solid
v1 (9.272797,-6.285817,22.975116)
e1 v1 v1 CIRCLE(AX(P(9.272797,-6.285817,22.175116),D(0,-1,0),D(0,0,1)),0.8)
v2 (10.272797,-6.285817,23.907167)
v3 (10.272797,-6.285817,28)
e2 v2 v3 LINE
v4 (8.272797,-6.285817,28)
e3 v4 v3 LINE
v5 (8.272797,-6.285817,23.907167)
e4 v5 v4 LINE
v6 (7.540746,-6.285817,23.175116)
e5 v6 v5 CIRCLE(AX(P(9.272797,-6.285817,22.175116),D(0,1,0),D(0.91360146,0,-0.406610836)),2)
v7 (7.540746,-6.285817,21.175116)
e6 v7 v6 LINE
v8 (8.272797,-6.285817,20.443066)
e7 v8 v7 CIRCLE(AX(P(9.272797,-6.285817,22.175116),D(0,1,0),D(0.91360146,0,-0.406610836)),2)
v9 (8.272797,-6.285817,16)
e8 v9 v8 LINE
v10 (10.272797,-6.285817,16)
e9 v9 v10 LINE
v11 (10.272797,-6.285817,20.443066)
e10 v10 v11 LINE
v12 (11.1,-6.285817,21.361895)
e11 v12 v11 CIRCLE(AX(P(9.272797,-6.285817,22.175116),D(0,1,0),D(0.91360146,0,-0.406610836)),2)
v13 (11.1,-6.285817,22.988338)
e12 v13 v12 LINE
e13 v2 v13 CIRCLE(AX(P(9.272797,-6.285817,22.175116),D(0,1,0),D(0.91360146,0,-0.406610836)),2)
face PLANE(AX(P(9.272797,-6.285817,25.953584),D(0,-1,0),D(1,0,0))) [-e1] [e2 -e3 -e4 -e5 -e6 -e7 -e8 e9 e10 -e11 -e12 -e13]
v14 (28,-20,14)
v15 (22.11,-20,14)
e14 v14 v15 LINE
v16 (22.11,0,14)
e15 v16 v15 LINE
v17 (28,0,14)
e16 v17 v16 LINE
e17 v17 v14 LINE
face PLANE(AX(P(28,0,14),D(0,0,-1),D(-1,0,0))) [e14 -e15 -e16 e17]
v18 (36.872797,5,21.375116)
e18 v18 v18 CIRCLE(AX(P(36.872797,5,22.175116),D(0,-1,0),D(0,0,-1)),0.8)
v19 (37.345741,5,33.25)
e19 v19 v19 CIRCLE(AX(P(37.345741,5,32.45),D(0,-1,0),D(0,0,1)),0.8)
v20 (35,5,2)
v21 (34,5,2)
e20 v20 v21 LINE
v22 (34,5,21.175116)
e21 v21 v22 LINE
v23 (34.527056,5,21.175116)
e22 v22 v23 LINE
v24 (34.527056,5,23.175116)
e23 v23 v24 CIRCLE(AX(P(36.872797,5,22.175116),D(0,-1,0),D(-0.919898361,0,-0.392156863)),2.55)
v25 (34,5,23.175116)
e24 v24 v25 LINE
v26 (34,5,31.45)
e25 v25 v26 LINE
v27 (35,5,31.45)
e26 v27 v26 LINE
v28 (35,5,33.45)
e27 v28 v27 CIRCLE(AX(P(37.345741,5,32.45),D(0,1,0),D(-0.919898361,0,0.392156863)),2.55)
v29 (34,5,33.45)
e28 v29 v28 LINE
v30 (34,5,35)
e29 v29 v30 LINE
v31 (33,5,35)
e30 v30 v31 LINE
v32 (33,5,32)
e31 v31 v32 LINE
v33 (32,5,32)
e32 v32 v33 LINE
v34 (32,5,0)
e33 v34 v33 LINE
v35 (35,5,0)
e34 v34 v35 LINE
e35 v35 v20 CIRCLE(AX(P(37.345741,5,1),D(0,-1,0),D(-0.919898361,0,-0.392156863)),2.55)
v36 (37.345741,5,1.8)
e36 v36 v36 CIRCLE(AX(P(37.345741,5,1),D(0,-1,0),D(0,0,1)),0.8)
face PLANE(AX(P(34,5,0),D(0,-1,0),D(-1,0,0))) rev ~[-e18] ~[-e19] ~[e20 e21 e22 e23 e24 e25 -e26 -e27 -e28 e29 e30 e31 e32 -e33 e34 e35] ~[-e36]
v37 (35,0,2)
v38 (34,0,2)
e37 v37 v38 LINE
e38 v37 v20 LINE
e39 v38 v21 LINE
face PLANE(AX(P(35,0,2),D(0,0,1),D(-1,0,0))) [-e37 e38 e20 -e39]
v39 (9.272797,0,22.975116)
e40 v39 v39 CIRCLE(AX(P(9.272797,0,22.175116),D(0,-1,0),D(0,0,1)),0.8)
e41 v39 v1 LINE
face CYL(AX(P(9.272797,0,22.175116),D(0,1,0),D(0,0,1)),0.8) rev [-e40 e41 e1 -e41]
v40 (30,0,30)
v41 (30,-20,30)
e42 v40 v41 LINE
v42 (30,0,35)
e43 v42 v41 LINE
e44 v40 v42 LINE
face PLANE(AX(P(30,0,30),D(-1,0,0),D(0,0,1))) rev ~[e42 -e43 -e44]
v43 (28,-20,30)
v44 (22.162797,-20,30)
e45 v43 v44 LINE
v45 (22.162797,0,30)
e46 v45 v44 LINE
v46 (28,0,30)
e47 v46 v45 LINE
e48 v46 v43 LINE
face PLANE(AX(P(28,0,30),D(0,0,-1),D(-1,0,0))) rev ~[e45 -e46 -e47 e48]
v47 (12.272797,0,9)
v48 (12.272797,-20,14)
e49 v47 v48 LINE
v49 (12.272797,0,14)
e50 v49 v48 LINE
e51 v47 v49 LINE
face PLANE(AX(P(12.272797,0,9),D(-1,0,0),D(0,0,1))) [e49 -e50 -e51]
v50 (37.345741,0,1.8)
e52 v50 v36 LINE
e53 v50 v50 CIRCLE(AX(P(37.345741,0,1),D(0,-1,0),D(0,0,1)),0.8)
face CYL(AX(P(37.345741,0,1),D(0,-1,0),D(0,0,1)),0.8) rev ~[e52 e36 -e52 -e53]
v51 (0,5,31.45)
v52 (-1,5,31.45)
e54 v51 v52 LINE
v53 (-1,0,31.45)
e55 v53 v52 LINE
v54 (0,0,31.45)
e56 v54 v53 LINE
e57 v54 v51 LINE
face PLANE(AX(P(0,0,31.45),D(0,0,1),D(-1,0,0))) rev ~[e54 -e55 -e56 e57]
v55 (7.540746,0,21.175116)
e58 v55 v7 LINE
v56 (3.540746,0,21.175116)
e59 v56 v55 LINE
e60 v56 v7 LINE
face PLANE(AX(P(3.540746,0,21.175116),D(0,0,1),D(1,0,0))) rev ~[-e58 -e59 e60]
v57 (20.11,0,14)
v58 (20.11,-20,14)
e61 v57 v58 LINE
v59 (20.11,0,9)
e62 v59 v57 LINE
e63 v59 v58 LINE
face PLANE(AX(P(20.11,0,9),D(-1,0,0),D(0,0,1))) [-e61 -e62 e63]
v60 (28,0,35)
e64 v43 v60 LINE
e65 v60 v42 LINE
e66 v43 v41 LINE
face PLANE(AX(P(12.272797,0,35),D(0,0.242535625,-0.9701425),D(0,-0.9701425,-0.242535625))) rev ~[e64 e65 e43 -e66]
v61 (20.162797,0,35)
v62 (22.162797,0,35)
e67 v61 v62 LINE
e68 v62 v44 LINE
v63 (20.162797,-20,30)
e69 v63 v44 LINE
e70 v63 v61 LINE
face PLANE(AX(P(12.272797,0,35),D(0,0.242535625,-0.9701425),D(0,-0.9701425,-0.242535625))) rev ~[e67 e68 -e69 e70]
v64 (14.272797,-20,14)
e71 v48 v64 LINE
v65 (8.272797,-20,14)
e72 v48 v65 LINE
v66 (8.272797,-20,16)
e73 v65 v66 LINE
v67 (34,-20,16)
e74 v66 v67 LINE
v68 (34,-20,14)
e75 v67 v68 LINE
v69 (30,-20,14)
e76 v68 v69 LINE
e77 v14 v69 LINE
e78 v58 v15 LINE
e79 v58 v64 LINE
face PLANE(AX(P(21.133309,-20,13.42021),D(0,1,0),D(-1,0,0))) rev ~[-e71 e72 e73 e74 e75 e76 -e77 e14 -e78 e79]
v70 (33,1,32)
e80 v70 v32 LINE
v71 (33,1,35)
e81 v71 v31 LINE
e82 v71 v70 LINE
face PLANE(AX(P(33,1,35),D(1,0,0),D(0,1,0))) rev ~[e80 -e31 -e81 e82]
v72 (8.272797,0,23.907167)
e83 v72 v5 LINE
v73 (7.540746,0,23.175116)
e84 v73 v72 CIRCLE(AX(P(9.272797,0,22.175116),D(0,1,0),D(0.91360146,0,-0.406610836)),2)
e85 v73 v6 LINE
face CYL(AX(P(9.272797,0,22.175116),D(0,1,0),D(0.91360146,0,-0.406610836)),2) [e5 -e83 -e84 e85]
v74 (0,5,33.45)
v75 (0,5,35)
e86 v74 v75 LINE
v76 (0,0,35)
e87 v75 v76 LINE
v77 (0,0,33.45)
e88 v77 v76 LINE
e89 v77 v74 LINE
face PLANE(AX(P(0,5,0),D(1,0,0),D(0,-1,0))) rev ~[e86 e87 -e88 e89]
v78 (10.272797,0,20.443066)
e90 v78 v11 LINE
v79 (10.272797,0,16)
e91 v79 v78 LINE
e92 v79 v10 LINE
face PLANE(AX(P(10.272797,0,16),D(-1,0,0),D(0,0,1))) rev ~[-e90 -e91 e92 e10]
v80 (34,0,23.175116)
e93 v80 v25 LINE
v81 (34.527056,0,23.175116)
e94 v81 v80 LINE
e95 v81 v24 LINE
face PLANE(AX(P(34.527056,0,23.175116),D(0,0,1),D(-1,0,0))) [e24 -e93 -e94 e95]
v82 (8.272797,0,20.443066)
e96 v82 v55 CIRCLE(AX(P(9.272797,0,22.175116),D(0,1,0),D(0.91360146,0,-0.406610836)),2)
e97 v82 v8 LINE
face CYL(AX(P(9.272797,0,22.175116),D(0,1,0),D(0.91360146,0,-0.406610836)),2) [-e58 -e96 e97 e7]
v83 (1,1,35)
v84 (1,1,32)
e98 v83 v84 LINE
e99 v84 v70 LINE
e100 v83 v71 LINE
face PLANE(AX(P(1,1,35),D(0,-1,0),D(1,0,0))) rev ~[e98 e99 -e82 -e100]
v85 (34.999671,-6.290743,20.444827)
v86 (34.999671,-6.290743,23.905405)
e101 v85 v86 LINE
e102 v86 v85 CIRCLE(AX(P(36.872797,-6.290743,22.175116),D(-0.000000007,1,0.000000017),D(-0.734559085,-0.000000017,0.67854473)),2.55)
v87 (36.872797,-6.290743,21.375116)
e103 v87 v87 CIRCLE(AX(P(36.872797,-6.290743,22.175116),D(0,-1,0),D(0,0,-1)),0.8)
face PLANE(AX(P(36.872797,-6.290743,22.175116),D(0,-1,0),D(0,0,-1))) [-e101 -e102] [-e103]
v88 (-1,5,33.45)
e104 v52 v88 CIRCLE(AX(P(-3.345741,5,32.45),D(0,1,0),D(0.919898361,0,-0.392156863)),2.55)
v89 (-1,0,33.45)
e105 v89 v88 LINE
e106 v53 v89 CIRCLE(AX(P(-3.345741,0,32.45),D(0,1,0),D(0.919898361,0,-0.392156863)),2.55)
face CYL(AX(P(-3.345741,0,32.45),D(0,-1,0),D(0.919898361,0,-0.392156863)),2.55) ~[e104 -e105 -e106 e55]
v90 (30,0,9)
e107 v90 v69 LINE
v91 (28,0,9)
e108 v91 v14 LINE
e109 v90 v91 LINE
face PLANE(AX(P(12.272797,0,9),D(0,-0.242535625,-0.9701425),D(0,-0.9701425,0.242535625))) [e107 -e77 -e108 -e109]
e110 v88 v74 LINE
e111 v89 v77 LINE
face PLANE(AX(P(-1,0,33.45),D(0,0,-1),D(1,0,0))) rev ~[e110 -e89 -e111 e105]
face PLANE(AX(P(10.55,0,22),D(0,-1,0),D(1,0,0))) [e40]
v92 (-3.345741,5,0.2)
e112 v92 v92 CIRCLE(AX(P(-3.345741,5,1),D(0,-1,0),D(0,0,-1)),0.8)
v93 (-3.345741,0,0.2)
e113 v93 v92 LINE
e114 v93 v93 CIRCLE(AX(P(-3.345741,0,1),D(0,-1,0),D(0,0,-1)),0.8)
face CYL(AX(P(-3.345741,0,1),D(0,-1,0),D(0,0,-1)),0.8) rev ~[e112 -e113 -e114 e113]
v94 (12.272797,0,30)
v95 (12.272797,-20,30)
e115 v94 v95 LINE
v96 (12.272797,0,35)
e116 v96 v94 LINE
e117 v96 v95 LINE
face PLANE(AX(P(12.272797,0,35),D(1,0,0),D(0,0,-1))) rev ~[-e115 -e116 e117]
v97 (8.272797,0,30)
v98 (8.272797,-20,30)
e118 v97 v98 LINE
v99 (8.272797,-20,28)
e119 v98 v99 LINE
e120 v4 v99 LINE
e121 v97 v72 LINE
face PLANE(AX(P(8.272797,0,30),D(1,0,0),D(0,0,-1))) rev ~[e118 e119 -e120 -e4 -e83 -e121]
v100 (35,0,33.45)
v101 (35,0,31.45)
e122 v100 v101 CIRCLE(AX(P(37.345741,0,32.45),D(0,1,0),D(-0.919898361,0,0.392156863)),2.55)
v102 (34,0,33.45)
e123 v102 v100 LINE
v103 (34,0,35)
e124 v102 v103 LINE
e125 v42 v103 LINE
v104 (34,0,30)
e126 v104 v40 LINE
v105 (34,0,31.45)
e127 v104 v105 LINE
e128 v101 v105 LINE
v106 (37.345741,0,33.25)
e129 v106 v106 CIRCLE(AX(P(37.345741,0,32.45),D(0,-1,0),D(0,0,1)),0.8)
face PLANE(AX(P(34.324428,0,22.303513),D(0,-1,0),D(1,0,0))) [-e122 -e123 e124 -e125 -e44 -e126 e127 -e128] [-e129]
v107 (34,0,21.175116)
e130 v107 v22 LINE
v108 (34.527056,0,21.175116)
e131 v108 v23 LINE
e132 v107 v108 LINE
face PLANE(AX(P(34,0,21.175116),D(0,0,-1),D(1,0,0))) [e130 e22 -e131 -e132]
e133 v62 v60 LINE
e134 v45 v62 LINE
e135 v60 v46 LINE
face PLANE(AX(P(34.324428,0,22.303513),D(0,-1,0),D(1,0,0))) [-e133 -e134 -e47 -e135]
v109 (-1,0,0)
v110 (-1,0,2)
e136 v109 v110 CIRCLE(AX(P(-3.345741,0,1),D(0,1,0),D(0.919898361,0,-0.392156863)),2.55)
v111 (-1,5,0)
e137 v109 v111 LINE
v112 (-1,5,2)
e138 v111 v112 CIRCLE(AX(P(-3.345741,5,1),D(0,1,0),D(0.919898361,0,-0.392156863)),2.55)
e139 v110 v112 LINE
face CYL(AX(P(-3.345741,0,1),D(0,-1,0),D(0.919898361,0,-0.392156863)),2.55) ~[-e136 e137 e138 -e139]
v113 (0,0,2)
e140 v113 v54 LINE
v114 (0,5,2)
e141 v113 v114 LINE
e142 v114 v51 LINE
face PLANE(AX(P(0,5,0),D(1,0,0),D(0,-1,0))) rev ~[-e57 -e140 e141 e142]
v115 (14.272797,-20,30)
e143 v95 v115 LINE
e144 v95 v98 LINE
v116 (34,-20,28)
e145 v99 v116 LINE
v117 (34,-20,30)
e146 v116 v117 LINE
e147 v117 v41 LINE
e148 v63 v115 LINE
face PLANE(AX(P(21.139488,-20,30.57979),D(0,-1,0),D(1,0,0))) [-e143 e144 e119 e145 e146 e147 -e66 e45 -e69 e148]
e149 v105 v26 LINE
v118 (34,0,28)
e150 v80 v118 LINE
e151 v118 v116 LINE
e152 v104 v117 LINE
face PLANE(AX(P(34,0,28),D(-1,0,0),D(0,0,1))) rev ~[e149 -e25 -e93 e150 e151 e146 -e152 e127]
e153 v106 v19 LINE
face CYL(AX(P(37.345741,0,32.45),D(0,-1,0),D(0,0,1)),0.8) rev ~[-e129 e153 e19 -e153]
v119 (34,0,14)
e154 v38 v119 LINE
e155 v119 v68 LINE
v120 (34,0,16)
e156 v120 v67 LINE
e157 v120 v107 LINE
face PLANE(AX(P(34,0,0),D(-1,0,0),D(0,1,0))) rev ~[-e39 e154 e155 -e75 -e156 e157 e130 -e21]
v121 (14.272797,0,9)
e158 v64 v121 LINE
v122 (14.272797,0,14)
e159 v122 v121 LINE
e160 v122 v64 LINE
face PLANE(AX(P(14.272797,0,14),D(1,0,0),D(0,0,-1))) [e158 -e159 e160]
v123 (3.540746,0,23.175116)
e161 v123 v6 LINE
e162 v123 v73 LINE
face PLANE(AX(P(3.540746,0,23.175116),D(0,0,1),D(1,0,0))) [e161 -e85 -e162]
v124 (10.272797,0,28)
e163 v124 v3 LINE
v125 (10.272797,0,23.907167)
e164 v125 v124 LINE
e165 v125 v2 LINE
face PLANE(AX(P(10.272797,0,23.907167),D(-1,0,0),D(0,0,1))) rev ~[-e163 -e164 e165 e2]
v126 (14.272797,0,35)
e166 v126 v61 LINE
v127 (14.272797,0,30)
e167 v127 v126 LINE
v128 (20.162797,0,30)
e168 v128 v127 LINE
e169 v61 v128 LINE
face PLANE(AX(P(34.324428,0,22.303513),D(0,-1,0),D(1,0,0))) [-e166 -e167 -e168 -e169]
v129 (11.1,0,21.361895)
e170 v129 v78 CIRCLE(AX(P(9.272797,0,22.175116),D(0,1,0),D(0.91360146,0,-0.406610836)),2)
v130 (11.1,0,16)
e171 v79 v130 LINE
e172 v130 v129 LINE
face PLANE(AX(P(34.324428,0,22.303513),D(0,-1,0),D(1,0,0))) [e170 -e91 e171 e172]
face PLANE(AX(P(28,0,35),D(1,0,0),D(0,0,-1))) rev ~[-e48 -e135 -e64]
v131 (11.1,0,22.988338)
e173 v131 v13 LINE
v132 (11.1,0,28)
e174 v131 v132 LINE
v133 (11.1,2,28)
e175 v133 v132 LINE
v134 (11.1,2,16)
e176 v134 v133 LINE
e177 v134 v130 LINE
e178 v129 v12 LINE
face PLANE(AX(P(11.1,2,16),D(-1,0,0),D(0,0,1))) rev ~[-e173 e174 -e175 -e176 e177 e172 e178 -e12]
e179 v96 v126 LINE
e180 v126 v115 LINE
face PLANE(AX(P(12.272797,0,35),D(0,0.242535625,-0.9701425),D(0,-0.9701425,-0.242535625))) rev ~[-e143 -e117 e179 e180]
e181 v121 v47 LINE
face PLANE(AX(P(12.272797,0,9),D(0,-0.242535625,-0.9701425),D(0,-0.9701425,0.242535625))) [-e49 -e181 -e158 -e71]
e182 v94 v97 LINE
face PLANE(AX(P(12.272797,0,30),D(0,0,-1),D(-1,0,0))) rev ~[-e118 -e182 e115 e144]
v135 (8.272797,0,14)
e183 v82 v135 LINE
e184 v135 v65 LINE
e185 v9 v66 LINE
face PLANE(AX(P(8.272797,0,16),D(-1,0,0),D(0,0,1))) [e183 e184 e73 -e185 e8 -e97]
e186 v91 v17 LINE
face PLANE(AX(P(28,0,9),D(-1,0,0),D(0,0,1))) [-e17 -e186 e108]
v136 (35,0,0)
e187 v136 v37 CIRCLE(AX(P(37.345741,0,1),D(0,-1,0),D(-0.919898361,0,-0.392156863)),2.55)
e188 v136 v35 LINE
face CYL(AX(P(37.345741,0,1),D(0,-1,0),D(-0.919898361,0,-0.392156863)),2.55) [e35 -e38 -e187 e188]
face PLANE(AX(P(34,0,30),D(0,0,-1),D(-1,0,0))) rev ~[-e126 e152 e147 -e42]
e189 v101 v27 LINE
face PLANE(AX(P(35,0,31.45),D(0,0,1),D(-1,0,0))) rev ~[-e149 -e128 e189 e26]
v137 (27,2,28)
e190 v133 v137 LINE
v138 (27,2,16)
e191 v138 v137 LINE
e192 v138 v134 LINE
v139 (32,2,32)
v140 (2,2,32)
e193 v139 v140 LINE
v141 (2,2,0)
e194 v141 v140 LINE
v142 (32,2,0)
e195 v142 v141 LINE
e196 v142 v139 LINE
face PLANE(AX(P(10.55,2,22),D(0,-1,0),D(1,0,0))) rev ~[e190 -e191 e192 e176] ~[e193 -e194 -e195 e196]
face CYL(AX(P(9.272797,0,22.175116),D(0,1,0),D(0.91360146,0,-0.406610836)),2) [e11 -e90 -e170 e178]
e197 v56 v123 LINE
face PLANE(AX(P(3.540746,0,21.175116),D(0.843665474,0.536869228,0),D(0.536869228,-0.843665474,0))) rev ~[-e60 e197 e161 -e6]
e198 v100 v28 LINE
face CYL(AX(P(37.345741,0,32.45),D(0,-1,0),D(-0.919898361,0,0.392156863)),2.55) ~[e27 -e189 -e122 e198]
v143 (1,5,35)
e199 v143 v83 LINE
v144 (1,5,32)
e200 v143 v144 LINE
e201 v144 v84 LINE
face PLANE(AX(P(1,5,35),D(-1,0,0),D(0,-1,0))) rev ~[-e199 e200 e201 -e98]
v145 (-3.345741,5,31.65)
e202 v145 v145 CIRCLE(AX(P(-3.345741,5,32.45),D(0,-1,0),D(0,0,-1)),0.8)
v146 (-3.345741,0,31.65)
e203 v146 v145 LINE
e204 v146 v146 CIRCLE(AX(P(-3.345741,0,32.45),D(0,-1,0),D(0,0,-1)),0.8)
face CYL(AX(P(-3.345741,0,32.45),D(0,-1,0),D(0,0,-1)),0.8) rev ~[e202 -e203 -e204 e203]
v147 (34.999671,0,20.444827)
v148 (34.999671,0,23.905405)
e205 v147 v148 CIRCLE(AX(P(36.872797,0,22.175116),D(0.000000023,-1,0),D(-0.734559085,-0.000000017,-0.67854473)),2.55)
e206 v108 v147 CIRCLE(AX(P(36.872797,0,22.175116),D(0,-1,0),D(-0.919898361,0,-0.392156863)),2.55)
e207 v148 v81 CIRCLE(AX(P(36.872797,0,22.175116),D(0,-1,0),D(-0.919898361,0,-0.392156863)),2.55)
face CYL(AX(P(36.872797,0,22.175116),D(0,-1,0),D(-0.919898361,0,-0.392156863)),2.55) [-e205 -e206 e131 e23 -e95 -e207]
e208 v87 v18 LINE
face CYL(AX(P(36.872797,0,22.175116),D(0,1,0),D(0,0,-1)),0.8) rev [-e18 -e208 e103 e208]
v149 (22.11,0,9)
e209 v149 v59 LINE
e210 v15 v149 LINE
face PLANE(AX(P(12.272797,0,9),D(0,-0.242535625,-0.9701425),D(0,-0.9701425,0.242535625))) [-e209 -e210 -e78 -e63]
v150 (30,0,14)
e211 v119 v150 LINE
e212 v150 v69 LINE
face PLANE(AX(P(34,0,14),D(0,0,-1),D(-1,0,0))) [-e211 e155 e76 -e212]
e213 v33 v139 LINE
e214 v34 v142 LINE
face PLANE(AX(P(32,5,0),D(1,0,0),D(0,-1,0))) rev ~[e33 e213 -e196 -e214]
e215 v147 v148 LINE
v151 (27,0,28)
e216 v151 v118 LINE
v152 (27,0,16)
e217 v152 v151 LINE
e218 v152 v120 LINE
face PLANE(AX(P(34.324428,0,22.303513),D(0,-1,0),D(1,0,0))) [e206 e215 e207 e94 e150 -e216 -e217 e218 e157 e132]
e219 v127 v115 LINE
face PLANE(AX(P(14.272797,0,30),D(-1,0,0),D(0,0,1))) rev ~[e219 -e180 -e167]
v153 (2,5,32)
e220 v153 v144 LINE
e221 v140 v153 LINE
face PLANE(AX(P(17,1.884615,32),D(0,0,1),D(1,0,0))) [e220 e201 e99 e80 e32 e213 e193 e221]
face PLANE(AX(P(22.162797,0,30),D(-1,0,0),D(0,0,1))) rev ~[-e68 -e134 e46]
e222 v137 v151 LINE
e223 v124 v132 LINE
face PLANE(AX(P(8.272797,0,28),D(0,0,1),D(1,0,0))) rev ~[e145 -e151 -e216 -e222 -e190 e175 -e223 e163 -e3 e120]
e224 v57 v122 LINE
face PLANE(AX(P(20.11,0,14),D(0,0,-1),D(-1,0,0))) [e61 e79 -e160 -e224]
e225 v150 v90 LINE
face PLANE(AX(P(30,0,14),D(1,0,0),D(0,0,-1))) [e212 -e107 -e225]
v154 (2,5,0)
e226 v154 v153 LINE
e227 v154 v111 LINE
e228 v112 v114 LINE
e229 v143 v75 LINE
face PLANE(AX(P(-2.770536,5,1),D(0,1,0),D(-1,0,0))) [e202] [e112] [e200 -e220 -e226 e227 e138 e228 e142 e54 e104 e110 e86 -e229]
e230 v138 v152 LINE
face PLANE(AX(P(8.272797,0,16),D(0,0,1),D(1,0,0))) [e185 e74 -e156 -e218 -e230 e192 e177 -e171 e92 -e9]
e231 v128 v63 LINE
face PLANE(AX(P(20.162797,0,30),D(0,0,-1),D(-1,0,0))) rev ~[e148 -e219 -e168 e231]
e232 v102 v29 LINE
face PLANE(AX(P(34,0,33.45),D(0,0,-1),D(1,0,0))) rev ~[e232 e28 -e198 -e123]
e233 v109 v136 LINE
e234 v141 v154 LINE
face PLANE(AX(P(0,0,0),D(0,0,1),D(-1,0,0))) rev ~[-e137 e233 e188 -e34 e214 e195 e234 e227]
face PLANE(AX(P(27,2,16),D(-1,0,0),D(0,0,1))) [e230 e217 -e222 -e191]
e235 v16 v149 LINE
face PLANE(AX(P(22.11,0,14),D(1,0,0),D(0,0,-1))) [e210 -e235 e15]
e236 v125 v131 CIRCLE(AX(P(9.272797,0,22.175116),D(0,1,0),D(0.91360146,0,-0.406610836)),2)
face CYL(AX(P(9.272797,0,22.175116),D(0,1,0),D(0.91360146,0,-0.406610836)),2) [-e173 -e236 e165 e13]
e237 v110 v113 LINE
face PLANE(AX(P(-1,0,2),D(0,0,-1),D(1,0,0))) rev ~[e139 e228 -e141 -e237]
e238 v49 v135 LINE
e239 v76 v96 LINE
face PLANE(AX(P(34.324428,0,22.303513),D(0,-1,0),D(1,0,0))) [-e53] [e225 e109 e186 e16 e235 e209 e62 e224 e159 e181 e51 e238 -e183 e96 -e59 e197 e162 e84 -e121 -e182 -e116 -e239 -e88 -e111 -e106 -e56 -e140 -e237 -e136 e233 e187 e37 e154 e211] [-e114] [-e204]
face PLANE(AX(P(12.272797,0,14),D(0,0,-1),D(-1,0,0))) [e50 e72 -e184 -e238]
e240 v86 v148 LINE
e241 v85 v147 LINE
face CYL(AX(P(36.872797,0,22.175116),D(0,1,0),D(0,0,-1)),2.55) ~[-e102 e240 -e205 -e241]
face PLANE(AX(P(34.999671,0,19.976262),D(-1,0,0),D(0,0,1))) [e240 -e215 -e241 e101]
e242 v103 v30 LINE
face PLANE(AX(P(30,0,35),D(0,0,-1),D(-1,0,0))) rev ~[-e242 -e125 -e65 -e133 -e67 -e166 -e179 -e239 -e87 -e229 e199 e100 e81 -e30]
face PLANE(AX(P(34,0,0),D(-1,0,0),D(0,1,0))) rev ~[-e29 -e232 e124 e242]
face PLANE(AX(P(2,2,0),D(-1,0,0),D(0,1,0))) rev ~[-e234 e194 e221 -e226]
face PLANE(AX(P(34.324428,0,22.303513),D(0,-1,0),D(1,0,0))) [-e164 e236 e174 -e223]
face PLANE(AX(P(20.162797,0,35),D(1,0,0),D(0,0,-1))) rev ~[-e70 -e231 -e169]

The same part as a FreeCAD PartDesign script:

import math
import FreeCAD as App
import Part
import Sketcher

V = App.Vector
Q = App.Units.Quantity


def add_polygon(sketch, points):
    """Adds a closed chain of lines whose ends are joined by coincident constraints."""
    first, n = sketch.GeometryCount, len(points)
    for a, b in zip(points, points[1:] + points[:1]):
        sketch.addGeometry(Part.LineSegment(App.Vector(*a, 0), App.Vector(*b, 0)), False)
    for i in range(n):
        sketch.addConstraint(Sketcher.Constraint("Coincident", first + i, 2, first + (i + 1) % n, 1))

doc = App.newDocument("Part")
params = doc.addObject("Spreadsheet::Sheet", "Params")
for row, (alias, value) in enumerate([
    ("sketch1_width", "34 mm"),
    ("sketch1_width2", "2 mm"),
    ("sketch1_height", "5 mm"),
    ("sketch1_height2", "3 mm"),
    ("pad1_length", "35 mm"),
    ("sketch2_width", "1 mm"),
    ("sketch2_width2", "32 mm"),
    ("sketch2_height", "4 mm"),
    ("sketch2_height2", "3 mm"),
    ("pocket1_length", "3 mm"),
    ("sketch3_width", "14 mm"),
    ("sketch3_height", "12 mm"),
    ("pocket2_length", "2 mm"),
    ("sketch4_width", "3 mm"),
    ("sketch4_height", "12 mm"),
    ("pocket3_length", "2 mm"),
    ("sketch5_height", "12 mm"),
    ("sketch5_width", "1.1 mm"),
    ("pad2_length", "2 mm"),
    ("sketch6_radius", "2 mm"),
    ("sketch6_diameter", "1.6 mm"),
    ("pad3_length", "6.285817 mm"),
    ("sketch7_width", "2 mm"),
    ("sketch7_width2", "4 mm"),
    ("pad4_length", "6.285817 mm"),
    ("sketch8_width", "4 mm"),
    ("pocket4_length", "2 mm"),
    ("sketch9_diameter", "1.6 mm"),
    ("sketch9_width", "1 mm"),
    ("sketch9_height", "2 mm"),
    ("sketch9_radius", "2.55 mm"),
    ("pad5_length", "5 mm"),
    ("sketch10_diameter", "1.6 mm"),
    ("sketch10_width", "1 mm"),
    ("sketch10_height", "2 mm"),
    ("sketch10_radius", "2.55 mm"),
    ("pad6_length", "5 mm"),
    ("sketch11_diameter", "1.6 mm"),
    ("sketch11_height", "2 mm"),
    ("sketch11_radius", "2.55 mm"),
    ("pad7_length", "5 mm"),
    ("sketch12_diameter", "5.1 mm"),
    ("sketch12_diameter2", "1.6 mm"),
    ("pad8_length", "6.290743 mm"),
    ("pocket5_length", "6.290743 mm"),
    ("sketch14_width", "4 mm"),
    ("sketch14_width2", "2 mm"),
    ("sketch14_height", "5 mm"),
    ("sketch14_width3", "5.89 mm"),
    ("pad9_length", "20 mm"),
    ("sketch15_width", "20 mm"),
    ("sketch15_height", "5 mm"),
    ("pocket6_length", "17.727203 mm"),
], start=1):
    params.set(f"A{row}", alias)
    params.set(f"B{row}", "=" + value)
    params.setAlias(f"B{row}", alias)

body = doc.addObject("PartDesign::Body", "Body")

sketch1 = body.newObject("Sketcher::SketchObject", "Sketch")
sketch1.AttachmentSupport = (doc.getObject("XY_Plane"), [""])
sketch1.MapMode = "FlatFace"
add_polygon(sketch1, [(0, 0), (34, 0), (34, 5), (32, 5), (32, 2), (2, 2), (2, 5), (0, 5)])
sketch1.addConstraint(Sketcher.Constraint("Horizontal", 0))
sketch1.addConstraint(Sketcher.Constraint("Vertical", 1))
sketch1.addConstraint(Sketcher.Constraint("Horizontal", 2))
sketch1.addConstraint(Sketcher.Constraint("Vertical", 3))
sketch1.addConstraint(Sketcher.Constraint("Horizontal", 4))
sketch1.addConstraint(Sketcher.Constraint("Vertical", 5))
sketch1.addConstraint(Sketcher.Constraint("Horizontal", 6))
sketch1.addConstraint(Sketcher.Constraint("Vertical", 7))
sketch1.addConstraint(Sketcher.Constraint("Coincident", 7, 2, -1, 1))
sketch1.addConstraint(Sketcher.Constraint("Horizontal", 2, 2, 5, 2))
sketch1.addConstraint(Sketcher.Constraint("Equal", 2, 6))
sketch1.addConstraint(Sketcher.Constraint("DistanceX", 0, 1, 0, 2, Q("34 mm")))
sketch1.addConstraint(Sketcher.Constraint("DistanceX", 2, 2, 2, 1, Q("2 mm")))
sketch1.addConstraint(Sketcher.Constraint("DistanceY", 1, 1, 1, 2, Q("5 mm")))
sketch1.addConstraint(Sketcher.Constraint("DistanceY", 3, 2, 3, 1, Q("3 mm")))
sketch1.setExpression("Constraints[19]", "Params.sketch1_width")
sketch1.setExpression("Constraints[20]", "Params.sketch1_width2")
sketch1.setExpression("Constraints[21]", "Params.sketch1_height")
sketch1.setExpression("Constraints[22]", "Params.sketch1_height2")
pad1 = body.newObject("PartDesign::Pad", "Pad")
pad1.Profile = sketch1
pad1.setExpression("Length", "Params.pad1_length")

sketch2 = body.newObject("Sketcher::SketchObject", "Sketch001")
sketch2.AttachmentSupport = (doc.getObject("XY_Plane"), [""])
sketch2.MapMode = "FlatFace"
sketch2.AttachmentOffset = App.Placement(V(0, 0, 35), App.Rotation())
add_polygon(sketch2, [(2, 5), (1, 5), (1, 1), (33, 1), (33, 5), (32, 5), (32, 2), (2, 2)])
sketch2.addConstraint(Sketcher.Constraint("Horizontal", 0))
sketch2.addConstraint(Sketcher.Constraint("Vertical", 1))
sketch2.addConstraint(Sketcher.Constraint("Horizontal", 2))
sketch2.addConstraint(Sketcher.Constraint("Vertical", 3))
sketch2.addConstraint(Sketcher.Constraint("Horizontal", 4))
sketch2.addConstraint(Sketcher.Constraint("Vertical", 5))
sketch2.addConstraint(Sketcher.Constraint("Horizontal", 6))
sketch2.addConstraint(Sketcher.Constraint("Vertical", 7))
sketch2.addConstraint(Sketcher.Constraint("Horizontal", 0, 2, 3, 2))
sketch2.addConstraint(Sketcher.Constraint("Equal", 0, 4))
sketch2.addConstraint(Sketcher.Constraint("DistanceX", 0, 2, 0, 1, Q("1 mm")))
sketch2.addConstraint(Sketcher.Constraint("DistanceX", 2, 1, 2, 2, Q("32 mm")))
sketch2.addConstraint(Sketcher.Constraint("DistanceY", 1, 2, 1, 1, Q("4 mm")))
sketch2.addConstraint(Sketcher.Constraint("DistanceY", 5, 2, 5, 1, Q("3 mm")))
sketch2.addConstraint(Sketcher.Constraint("DistanceX", -1, 1, 0, 2, Q("1 mm")))
sketch2.addConstraint(Sketcher.Constraint("DistanceY", -1, 1, 0, 2, Q("5 mm")))
sketch2.setExpression("Constraints[18]", "Params.sketch2_width")
sketch2.setExpression("Constraints[19]", "Params.sketch2_width2")
sketch2.setExpression("Constraints[20]", "Params.sketch2_height")
sketch2.setExpression("Constraints[21]", "Params.sketch2_height2")
pocket1 = body.newObject("PartDesign::Pocket", "Pocket")
pocket1.Profile = sketch2
pocket1.setExpression("Length", "Params.pocket1_length")

sketch3 = body.newObject("Sketcher::SketchObject", "Sketch002")
sketch3.AttachmentSupport = (doc.getObject("XZ_Plane"), [""])
sketch3.MapMode = "FlatFace"
add_polygon(sketch3, [(10, 16), (10, 28), (24, 28), (24, 16)])
sketch3.addConstraint(Sketcher.Constraint("Vertical", 0))
sketch3.addConstraint(Sketcher.Constraint("Horizontal", 1))
sketch3.addConstraint(Sketcher.Constraint("Vertical", 2))
sketch3.addConstraint(Sketcher.Constraint("Horizontal", 3))
sketch3.addConstraint(Sketcher.Constraint("DistanceX", 1, 1, 1, 2, Q("14 mm")))
sketch3.addConstraint(Sketcher.Constraint("DistanceY", 0, 1, 0, 2, Q("12 mm")))
sketch3.addConstraint(Sketcher.Constraint("DistanceX", -1, 1, 0, 2, Q("10 mm")))
sketch3.addConstraint(Sketcher.Constraint("DistanceY", -1, 1, 0, 2, Q("28 mm")))
sketch3.setExpression("Constraints[8]", "Params.sketch3_width")
sketch3.setExpression("Constraints[9]", "Params.sketch3_height")
pocket2 = body.newObject("PartDesign::Pocket", "Pocket001")
pocket2.Profile = sketch3
pocket2.setExpression("Length", "Params.pocket2_length")

sketch4 = body.newObject("Sketcher::SketchObject", "Sketch003")
sketch4.AttachmentSupport = (doc.getObject("XZ_Plane"), [""])
sketch4.MapMode = "FlatFace"
sketch4.AttachmentOffset = App.Placement(V(0, 0, -2), App.Rotation())
add_polygon(sketch4, [(24, 28), (24, 16), (27, 16), (27, 28)])
sketch4.addConstraint(Sketcher.Constraint("Vertical", 0))
sketch4.addConstraint(Sketcher.Constraint("Horizontal", 1))
sketch4.addConstraint(Sketcher.Constraint("Vertical", 2))
sketch4.addConstraint(Sketcher.Constraint("Horizontal", 3))
sketch4.addConstraint(Sketcher.Constraint("DistanceX", 1, 1, 1, 2, Q("3 mm")))
sketch4.addConstraint(Sketcher.Constraint("DistanceY", 0, 2, 0, 1, Q("12 mm")))
sketch4.addConstraint(Sketcher.Constraint("DistanceX", -1, 1, 0, 2, Q("24 mm")))
sketch4.addConstraint(Sketcher.Constraint("DistanceY", -1, 1, 0, 2, Q("16 mm")))
sketch4.setExpression("Constraints[8]", "Params.sketch4_width")
sketch4.setExpression("Constraints[9]", "Params.sketch4_height")
pocket3 = body.newObject("PartDesign::Pocket", "Pocket002")
pocket3.Profile = sketch4
pocket3.setExpression("Length", "Params.pocket3_length")
pocket3.Reversed = True

sketch5 = body.newObject("Sketcher::SketchObject", "Sketch004")
sketch5.AttachmentSupport = (doc.getObject("XZ_Plane"), [""])
sketch5.MapMode = "FlatFace"
sketch5.AttachmentOffset = App.Placement(V(0, 0, -2), App.Rotation())
add_polygon(sketch5, [(10, 28), (10, 16), (11.1, 16), (11.1, 28)])
sketch5.addConstraint(Sketcher.Constraint("Vertical", 0))
sketch5.addConstraint(Sketcher.Constraint("Horizontal", 1))
sketch5.addConstraint(Sketcher.Constraint("Vertical", 2))
sketch5.addConstraint(Sketcher.Constraint("Horizontal", 3))
sketch5.addConstraint(Sketcher.Constraint("DistanceY", 0, 2, 0, 1, Q("12 mm")))
sketch5.addConstraint(Sketcher.Constraint("DistanceX", 1, 1, 1, 2, Q("1.1 mm")))
sketch5.addConstraint(Sketcher.Constraint("DistanceX", -1, 1, 0, 2, Q("10 mm")))
sketch5.addConstraint(Sketcher.Constraint("DistanceY", -1, 1, 0, 2, Q("16 mm")))
sketch5.setExpression("Constraints[8]", "Params.sketch5_height")
sketch5.setExpression("Constraints[9]", "Params.sketch5_width")
pad2 = body.newObject("PartDesign::Pad", "Pad001")
pad2.Profile = sketch5
pad2.setExpression("Length", "Params.pad2_length")

sketch6 = body.newObject("Sketcher::SketchObject", "Sketch005")
sketch6.AttachmentSupport = (doc.getObject("XZ_Plane"), [""])
sketch6.MapMode = "FlatFace"
sketch6.addGeometry(Part.LineSegment(V(11.1, 21.4, 0), V(11.1, 23, 0)), False)
sketch6.addGeometry(Part.ArcOfCircle(Part.Circle(V(9.3, 22.2, 0), V(0, 0, 1), 2), math.radians(24), math.radians(336)), False)
sketch6.addGeometry(Part.Circle(V(9.3, 22.2, 0), V(0, 0, 1), 0.8), False)
sketch6.addConstraint(Sketcher.Constraint("Coincident", 0, 1, 1, 2))
sketch6.addConstraint(Sketcher.Constraint("Coincident", 1, 1, 0, 2))
sketch6.addConstraint(Sketcher.Constraint("Vertical", 0))
sketch6.addConstraint(Sketcher.Constraint("Coincident", 2, 3, 1, 3))
sketch6.addConstraint(Sketcher.Constraint("Radius", 1, Q("2 mm")))
sketch6.addConstraint(Sketcher.Constraint("Diameter", 2, Q("1.6 mm")))
sketch6.addConstraint(Sketcher.Constraint("DistanceX", -1, 1, 0, 1, Q("11.1 mm")))
sketch6.addConstraint(Sketcher.Constraint("DistanceY", 0, 1, 0, 2, Q("1.626443 mm")))
sketch6.addConstraint(Sketcher.Constraint("DistanceY", -1, 1, 1, 1, Q("22.988338 mm")))
sketch6.setExpression("Constraints[4]", "Params.sketch6_radius")
sketch6.setExpression("Constraints[5]", "Params.sketch6_diameter")
pad3 = body.newObject("PartDesign::Pad", "Pad002")
pad3.Profile = sketch6
pad3.setExpression("Length", "Params.pad3_length")

sketch7 = body.newObject("Sketcher::SketchObject", "Sketch006")
sketch7.AttachmentSupport = (doc.getObject("XZ_Plane"), [""])
sketch7.MapMode = "FlatFace"
add_polygon(sketch7, [(8.3, 28), (8.3, 23.9), (10.3, 23.9), (10.3, 28)])
add_polygon(sketch7, [(8.3, 20.4), (8.3, 16), (10.3, 16), (10.3, 20.4)])
add_polygon(sketch7, [(3.5, 23.2), (3.5, 21.2), (7.5, 21.2), (7.5, 23.2)])
sketch7.addConstraint(Sketcher.Constraint("Vertical", 0))
sketch7.addConstraint(Sketcher.Constraint("Horizontal", 1))
sketch7.addConstraint(Sketcher.Constraint("Vertical", 2))
sketch7.addConstraint(Sketcher.Constraint("Horizontal", 3))
sketch7.addConstraint(Sketcher.Constraint("Vertical", 4))
sketch7.addConstraint(Sketcher.Constraint("Horizontal", 5))
sketch7.addConstraint(Sketcher.Constraint("Vertical", 6))
sketch7.addConstraint(Sketcher.Constraint("Horizontal", 7))
sketch7.addConstraint(Sketcher.Constraint("Vertical", 8))
sketch7.addConstraint(Sketcher.Constraint("Horizontal", 9))
sketch7.addConstraint(Sketcher.Constraint("Vertical", 10))
sketch7.addConstraint(Sketcher.Constraint("Horizontal", 11))
sketch7.addConstraint(Sketcher.Constraint("Vertical", 3, 2, 4, 2))
sketch7.addConstraint(Sketcher.Constraint("Vertical", 2, 2, 5, 2))
sketch7.addConstraint(Sketcher.Constraint("Equal", 7, 8))
sketch7.addConstraint(Sketcher.Constraint("DistanceX", 1, 1, 1, 2, Q("2 mm")))
sketch7.addConstraint(Sketcher.Constraint("DistanceX", 9, 1, 9, 2, Q("4 mm")))
sketch7.addConstraint(Sketcher.Constraint("DistanceY", -1, 1, 2, 2, Q("28 mm")))
sketch7.addConstraint(Sketcher.Constraint("DistanceY", -1, 1, 4, 2, Q("16 mm")))
sketch7.addConstraint(Sketcher.Constraint("DistanceY", 6, 2, 1, 2, Q("3.464102 mm")))
sketch7.addConstraint(Sketcher.Constraint("DistanceY", 0, 2, 0, 1, Q("4.092833 mm")))
sketch7.addConstraint(Sketcher.Constraint("DistanceX", 8, 2, 7, 2, Q("4.732051 mm")))
sketch7.addConstraint(Sketcher.Constraint("DistanceY", 7, 2, 8, 2, Q("0.732051 mm")))
sketch7.addConstraint(Sketcher.Constraint("DistanceX", -1, 1, 0, 2, Q("8.272797 mm")))
sketch7.setExpression("Constraints[27]", "Params.sketch7_width")
sketch7.setExpression("Constraints[28]", "Params.sketch7_width2")
pad4 = body.newObject("PartDesign::Pad", "Pad003")
pad4.Profile = sketch7
pad4.setExpression("Length", "Params.pad4_length")

sketch8 = body.newObject("Sketcher::SketchObject", "Sketch007")
sketch8.AttachmentSupport = (doc.getObject("XY_Plane"), [""])
sketch8.MapMode = "FlatFace"
sketch8.AttachmentOffset = App.Placement(V(0, 0, 21.175116), App.Rotation())
add_polygon(sketch8, [(3.5, 0), (7.5, -6.3), (3.5, -6.3)])
sketch8.addConstraint(Sketcher.Constraint("Horizontal", 1))
sketch8.addConstraint(Sketcher.Constraint("Vertical", 2))
sketch8.addConstraint(Sketcher.Constraint("PointOnObject", 2, 2, -1))
sketch8.addConstraint(Sketcher.Constraint("DistanceX", 1, 2, 1, 1, Q("4 mm")))
sketch8.addConstraint(Sketcher.Constraint("DistanceY", 2, 1, 2, 2, Q("6.285817 mm")))
sketch8.addConstraint(Sketcher.Constraint("DistanceX", -1, 1, 0, 2, Q("7.540746 mm")))
sketch8.setExpression("Constraints[6]", "Params.sketch8_width")
pocket4 = body.newObject("PartDesign::Pocket", "Pocket003")
pocket4.Profile = sketch8
pocket4.setExpression("Length", "Params.pocket4_length")
pocket4.Reversed = True

sketch9 = body.newObject("Sketcher::SketchObject", "Sketch008")
sketch9.AttachmentSupport = (doc.getObject("XZ_Plane"), [""])
sketch9.MapMode = "FlatFace"
sketch9.addGeometry(Part.LineSegment(V(-1, 31.4, 0), V(0, 31.4, 0)), False)
sketch9.addGeometry(Part.LineSegment(V(0, 31.4, 0), V(0, 33.5, 0)), False)
sketch9.addGeometry(Part.LineSegment(V(0, 33.5, 0), V(-1, 33.5, 0)), False)
sketch9.addGeometry(Part.ArcOfCircle(Part.Circle(V(-3.3, 32.5, 0), V(0, 0, 1), 2.5), math.radians(23), math.radians(337)), False)
sketch9.addGeometry(Part.Circle(V(-3.3, 32.5, 0), V(0, 0, 1), 0.8), False)
sketch9.addGeometry(Part.LineSegment(V(35, 33.5, 0), V(34, 33.5, 0)), False)
sketch9.addGeometry(Part.LineSegment(V(34, 33.5, 0), V(34, 31.4, 0)), False)
sketch9.addGeometry(Part.LineSegment(V(34, 31.4, 0), V(35, 31.4, 0)), False)
sketch9.addGeometry(Part.ArcOfCircle(Part.Circle(V(37.3, 32.5, 0), V(0, 0, 1), 2.5), math.radians(-157), math.radians(157)), False)
sketch9.addGeometry(Part.Circle(V(37.3, 32.5, 0), V(0, 0, 1), 0.8), False)
sketch9.addConstraint(Sketcher.Constraint("Coincident", 0, 2, 1, 1))
sketch9.addConstraint(Sketcher.Constraint("Coincident", 1, 2, 2, 1))
sketch9.addConstraint(Sketcher.Constraint("Coincident", 2, 2, 3, 1))
sketch9.addConstraint(Sketcher.Constraint("Coincident", 3, 2, 0, 1))
sketch9.addConstraint(Sketcher.Constraint("Coincident", 5, 2, 6, 1))
sketch9.addConstraint(Sketcher.Constraint("Coincident", 6, 2, 7, 1))
sketch9.addConstraint(Sketcher.Constraint("Coincident", 7, 2, 8, 1))
sketch9.addConstraint(Sketcher.Constraint("Coincident", 8, 2, 5, 1))
sketch9.addConstraint(Sketcher.Constraint("Horizontal", 0))
sketch9.addConstraint(Sketcher.Constraint("Vertical", 1))
sketch9.addConstraint(Sketcher.Constraint("Horizontal", 2))
sketch9.addConstraint(Sketcher.Constraint("Horizontal", 5))
sketch9.addConstraint(Sketcher.Constraint("Vertical", 6))
sketch9.addConstraint(Sketcher.Constraint("Horizontal", 7))
sketch9.addConstraint(Sketcher.Constraint("Coincident", 4, 3, 3, 3))
sketch9.addConstraint(Sketcher.Constraint("Coincident", 9, 3, 8, 3))
sketch9.addConstraint(Sketcher.Constraint("Equal", 3, 8))
sketch9.addConstraint(Sketcher.Constraint("Equal", 4, 9))
sketch9.addConstraint(Sketcher.Constraint("PointOnObject", 0, 2, -2))
sketch9.addConstraint(Sketcher.Constraint("Horizontal", 4, 3, 8, 3))
sketch9.addConstraint(Sketcher.Constraint("Horizontal", 2, 2, 5, 2))
sketch9.addConstraint(Sketcher.Constraint("Horizontal", 3, 2, 6, 2))
sketch9.addConstraint(Sketcher.Constraint("Vertical", 2, 2, 3, 2))
sketch9.addConstraint(Sketcher.Constraint("Equal", 2, 5))
sketch9.addConstraint(Sketcher.Constraint("Diameter", 4, Q("1.6 mm")))
sketch9.addConstraint(Sketcher.Constraint("DistanceX", 0, 1, 0, 2, Q("1 mm")))
sketch9.addConstraint(Sketcher.Constraint("DistanceY", 1, 1, 1, 2, Q("2 mm")))
sketch9.addConstraint(Sketcher.Constraint("Radius", 3, Q("2.55 mm")))
sketch9.addConstraint(Sketcher.Constraint("DistanceX", -1, 1, 5, 2, Q("34 mm")))
sketch9.addConstraint(Sketcher.Constraint("DistanceY", -1, 1, 3, 3, Q("32.45 mm")))
sketch9.setExpression("Constraints[24]", "Params.sketch9_diameter")
sketch9.setExpression("Constraints[25]", "Params.sketch9_width")
sketch9.setExpression("Constraints[26]", "Params.sketch9_height")
sketch9.setExpression("Constraints[27]", "Params.sketch9_radius")
pad5 = body.newObject("PartDesign::Pad", "Pad004")
pad5.Profile = sketch9
pad5.setExpression("Length", "Params.pad5_length")
pad5.Reversed = True

sketch10 = body.newObject("Sketcher::SketchObject", "Sketch009")
sketch10.AttachmentSupport = (doc.getObject("XZ_Plane"), [""])
sketch10.MapMode = "FlatFace"
sketch10.addGeometry(Part.LineSegment(V(0, 2, 0), V(-1, 2, 0)), False)
sketch10.addGeometry(Part.ArcOfCircle(Part.Circle(V(-3.3, 1, 0), V(0, 0, 1), 2.5), math.radians(23), math.radians(337)), False)
sketch10.addGeometry(Part.LineSegment(V(-1, 0, 0), V(0, 0, 0)), False)
sketch10.addGeometry(Part.LineSegment(V(0, 0, 0), V(0, 2, 0)), False)
sketch10.addGeometry(Part.Circle(V(-3.3, 1, 0), V(0, 0, 1), 0.8), False)
sketch10.addGeometry(Part.LineSegment(V(34, 2, 0), V(34, 0, 0)), False)
sketch10.addGeometry(Part.LineSegment(V(34, 0, 0), V(35, 0, 0)), False)
sketch10.addGeometry(Part.ArcOfCircle(Part.Circle(V(37.3, 1, 0), V(0, 0, 1), 2.5), math.radians(-157), math.radians(157)), False)
sketch10.addGeometry(Part.LineSegment(V(35, 2, 0), V(34, 2, 0)), False)
sketch10.addGeometry(Part.Circle(V(37.3, 1, 0), V(0, 0, 1), 0.8), False)
sketch10.addConstraint(Sketcher.Constraint("Coincident", 0, 2, 1, 1))
sketch10.addConstraint(Sketcher.Constraint("Coincident", 1, 2, 2, 1))
sketch10.addConstraint(Sketcher.Constraint("Coincident", 2, 2, 3, 1))
sketch10.addConstraint(Sketcher.Constraint("Coincident", 3, 2, 0, 1))
sketch10.addConstraint(Sketcher.Constraint("Coincident", 5, 2, 6, 1))
sketch10.addConstraint(Sketcher.Constraint("Coincident", 6, 2, 7, 1))
sketch10.addConstraint(Sketcher.Constraint("Coincident", 7, 2, 8, 1))
sketch10.addConstraint(Sketcher.Constraint("Coincident", 8, 2, 5, 1))
sketch10.addConstraint(Sketcher.Constraint("Horizontal", 0))
sketch10.addConstraint(Sketcher.Constraint("Horizontal", 2))
sketch10.addConstraint(Sketcher.Constraint("Vertical", 3))
sketch10.addConstraint(Sketcher.Constraint("Vertical", 5))
sketch10.addConstraint(Sketcher.Constraint("Horizontal", 6))
sketch10.addConstraint(Sketcher.Constraint("Horizontal", 8))
sketch10.addConstraint(Sketcher.Constraint("Coincident", 2, 2, -1, 1))
sketch10.addConstraint(Sketcher.Constraint("Coincident", 4, 3, 1, 3))
sketch10.addConstraint(Sketcher.Constraint("Coincident", 9, 3, 7, 3))
sketch10.addConstraint(Sketcher.Constraint("Equal", 1, 7))
sketch10.addConstraint(Sketcher.Constraint("Equal", 4, 9))
sketch10.addConstraint(Sketcher.Constraint("PointOnObject", 5, 2, -1))
sketch10.addConstraint(Sketcher.Constraint("Horizontal", 4, 3, 7, 3))
sketch10.addConstraint(Sketcher.Constraint("Horizontal", 3, 2, 7, 2))
sketch10.addConstraint(Sketcher.Constraint("Vertical", 0, 2, 1, 2))
sketch10.addConstraint(Sketcher.Constraint("Equal", 2, 6))
sketch10.addConstraint(Sketcher.Constraint("Diameter", 4, Q("1.6 mm")))
sketch10.addConstraint(Sketcher.Constraint("DistanceX", 0, 2, 0, 1, Q("1 mm")))
sketch10.addConstraint(Sketcher.Constraint("DistanceY", 3, 1, 3, 2, Q("2 mm")))
sketch10.addConstraint(Sketcher.Constraint("Radius", 1, Q("2.55 mm")))
sketch10.addConstraint(Sketcher.Constraint("DistanceX", -1, 1, 5, 2, Q("34 mm")))
sketch10.setExpression("Constraints[24]", "Params.sketch10_diameter")
sketch10.setExpression("Constraints[25]", "Params.sketch10_width")
sketch10.setExpression("Constraints[26]", "Params.sketch10_height")
sketch10.setExpression("Constraints[27]", "Params.sketch10_radius")
pad6 = body.newObject("PartDesign::Pad", "Pad005")
pad6.Profile = sketch10
pad6.setExpression("Length", "Params.pad6_length")
pad6.Reversed = True

sketch11 = body.newObject("Sketcher::SketchObject", "Sketch010")
sketch11.AttachmentSupport = (doc.getObject("XZ_Plane"), [""])
sketch11.MapMode = "FlatFace"
sketch11.addGeometry(Part.LineSegment(V(34, 21.2, 0), V(34.5, 21.2, 0)), False)
sketch11.addGeometry(Part.ArcOfCircle(Part.Circle(V(36.9, 22.2, 0), V(0, 0, 1), 2.5), math.radians(-157), math.radians(157)), False)
sketch11.addGeometry(Part.LineSegment(V(34.5, 23.2, 0), V(34, 23.2, 0)), False)
sketch11.addGeometry(Part.LineSegment(V(34, 23.2, 0), V(34, 21.2, 0)), False)
sketch11.addGeometry(Part.Circle(V(36.9, 22.2, 0), V(0, 0, 1), 0.8), False)
sketch11.addConstraint(Sketcher.Constraint("Coincident", 0, 2, 1, 1))
sketch11.addConstraint(Sketcher.Constraint("Coincident", 1, 2, 2, 1))
sketch11.addConstraint(Sketcher.Constraint("Coincident", 2, 2, 3, 1))
sketch11.addConstraint(Sketcher.Constraint("Coincident", 3, 2, 0, 1))
sketch11.addConstraint(Sketcher.Constraint("Horizontal", 0))
sketch11.addConstraint(Sketcher.Constraint("Horizontal", 2))
sketch11.addConstraint(Sketcher.Constraint("Vertical", 3))
sketch11.addConstraint(Sketcher.Constraint("Coincident", 4, 3, 1, 3))
sketch11.addConstraint(Sketcher.Constraint("Vertical", 0, 2, 1, 2))
sketch11.addConstraint(Sketcher.Constraint("Diameter", 4, Q("1.6 mm")))
sketch11.addConstraint(Sketcher.Constraint("DistanceY", 3, 2, 3, 1, Q("2 mm")))
sketch11.addConstraint(Sketcher.Constraint("Radius", 1, Q("2.55 mm")))
sketch11.addConstraint(Sketcher.Constraint("DistanceX", -1, 1, 2, 2, Q("34 mm")))
sketch11.addConstraint(Sketcher.Constraint("DistanceX", 0, 1, 0, 2, Q("0.527056 mm")))
sketch11.addConstraint(Sketcher.Constraint("DistanceY", -1, 1, 1, 3, Q("22.175116 mm")))
sketch11.setExpression("Constraints[9]", "Params.sketch11_diameter")
sketch11.setExpression("Constraints[10]", "Params.sketch11_height")
sketch11.setExpression("Constraints[11]", "Params.sketch11_radius")
pad7 = body.newObject("PartDesign::Pad", "Pad006")
pad7.Profile = sketch11
pad7.setExpression("Length", "Params.pad7_length")
pad7.Reversed = True

sketch12 = body.newObject("Sketcher::SketchObject", "Sketch011")
sketch12.AttachmentSupport = (doc.getObject("XZ_Plane"), [""])
sketch12.MapMode = "FlatFace"
sketch12.addGeometry(Part.Circle(V(36.9, 22.2, 0), V(0, 0, 1), 2.5), False)
sketch12.addGeometry(Part.Circle(V(36.9, 22.2, 0), V(0, 0, 1), 0.8), False)
sketch12.addConstraint(Sketcher.Constraint("Coincident", 1, 3, 0, 3))
sketch12.addConstraint(Sketcher.Constraint("Diameter", 0, Q("5.1 mm")))
sketch12.addConstraint(Sketcher.Constraint("Diameter", 1, Q("1.6 mm")))
sketch12.addConstraint(Sketcher.Constraint("DistanceX", -1, 1, 0, 3, Q("36.872797 mm")))
sketch12.addConstraint(Sketcher.Constraint("DistanceY", -1, 1, 0, 3, Q("22.175116 mm")))
sketch12.setExpression("Constraints[1]", "Params.sketch12_diameter")
sketch12.setExpression("Constraints[2]", "Params.sketch12_diameter2")
pad8 = body.newObject("PartDesign::Pad", "Pad007")
pad8.Profile = sketch12
pad8.setExpression("Length", "Params.pad8_length")

sketch13 = body.newObject("Sketcher::SketchObject", "Sketch012")
sketch13.AttachmentSupport = (doc.getObject("XZ_Plane"), [""])
sketch13.MapMode = "FlatFace"
sketch13.AttachmentOffset = App.Placement(V(0, 0, 0), App.Rotation())
add_polygon(sketch13, [(33.6, 24.6), (33.6, 20), (35, 20), (35, 24.6)])
sketch13.addConstraint(Sketcher.Constraint("Vertical", 0))
sketch13.addConstraint(Sketcher.Constraint("Horizontal", 1))
sketch13.addConstraint(Sketcher.Constraint("Vertical", 2))
sketch13.addConstraint(Sketcher.Constraint("Horizontal", 3))
sketch13.addConstraint(Sketcher.Constraint("DistanceY", 0, 2, 0, 1, Q("4.654501 mm")))
sketch13.addConstraint(Sketcher.Constraint("DistanceX", 1, 1, 1, 2, Q("1.350487 mm")))
sketch13.addConstraint(Sketcher.Constraint("DistanceX", -1, 1, 1, 2, Q("34.999671 mm")))
sketch13.addConstraint(Sketcher.Constraint("DistanceY", -1, 1, 0, 2, Q("19.976262 mm")))
pocket5 = body.newObject("PartDesign::Pocket", "Pocket004")
pocket5.Profile = sketch13
pocket5.setExpression("Length", "Params.pocket5_length")
pocket5.Reversed = True

sketch14 = body.newObject("Sketcher::SketchObject", "Sketch013")
sketch14.AttachmentSupport = (doc.getObject("XZ_Plane"), [""])
sketch14.MapMode = "FlatFace"
add_polygon(sketch14, [(8.3, 28), (34, 28), (34, 30), (30, 30), (30, 35), (28, 35), (28, 30), (22.2, 30), (22.2, 35), (20.2, 35), (20.2, 30), (14.3, 30), (14.3, 35), (12.3, 35), (12.3, 30), (8.3, 30)])
add_polygon(sketch14, [(34, 16), (8.3, 16), (8.3, 14), (12.3, 14), (12.3, 9), (14.3, 9), (14.3, 14), (20.1, 14), (20.1, 9), (22.1, 9), (22.1, 14), (28, 14), (28, 9), (30, 9), (30, 14), (34, 14)])
sketch14.addConstraint(Sketcher.Constraint("Horizontal", 0))
sketch14.addConstraint(Sketcher.Constraint("Vertical", 1))
sketch14.addConstraint(Sketcher.Constraint("Horizontal", 2))
sketch14.addConstraint(Sketcher.Constraint("Vertical", 3))
sketch14.addConstraint(Sketcher.Constraint("Horizontal", 4))
sketch14.addConstraint(Sketcher.Constraint("Vertical", 5))
sketch14.addConstraint(Sketcher.Constraint("Horizontal", 6))
sketch14.addConstraint(Sketcher.Constraint("Vertical", 7))
sketch14.addConstraint(Sketcher.Constraint("Horizontal", 8))
sketch14.addConstraint(Sketcher.Constraint("Vertical", 9))
sketch14.addConstraint(Sketcher.Constraint("Horizontal", 10))
sketch14.addConstraint(Sketcher.Constraint("Vertical", 11))
sketch14.addConstraint(Sketcher.Constraint("Horizontal", 12))
sketch14.addConstraint(Sketcher.Constraint("Vertical", 13))
sketch14.addConstraint(Sketcher.Constraint("Horizontal", 14))
sketch14.addConstraint(Sketcher.Constraint("Vertical", 15))
sketch14.addConstraint(Sketcher.Constraint("Horizontal", 16))
sketch14.addConstraint(Sketcher.Constraint("Vertical", 17))
sketch14.addConstraint(Sketcher.Constraint("Horizontal", 18))
sketch14.addConstraint(Sketcher.Constraint("Vertical", 19))
sketch14.addConstraint(Sketcher.Constraint("Horizontal", 20))
sketch14.addConstraint(Sketcher.Constraint("Vertical", 21))
sketch14.addConstraint(Sketcher.Constraint("Horizontal", 22))
sketch14.addConstraint(Sketcher.Constraint("Vertical", 23))
sketch14.addConstraint(Sketcher.Constraint("Horizontal", 24))
sketch14.addConstraint(Sketcher.Constraint("Vertical", 25))
sketch14.addConstraint(Sketcher.Constraint("Horizontal", 26))
sketch14.addConstraint(Sketcher.Constraint("Vertical", 27))
sketch14.addConstraint(Sketcher.Constraint("Horizontal", 28))
sketch14.addConstraint(Sketcher.Constraint("Vertical", 29))
sketch14.addConstraint(Sketcher.Constraint("Horizontal", 30))
sketch14.addConstraint(Sketcher.Constraint("Vertical", 31))
sketch14.addConstraint(Sketcher.Constraint("Horizontal", 2, 2, 5, 2))
sketch14.addConstraint(Sketcher.Constraint("Horizontal", 4, 2, 7, 2))
sketch14.addConstraint(Sketcher.Constraint("Horizontal", 6, 2, 9, 2))
sketch14.addConstraint(Sketcher.Constraint("Horizontal", 8, 2, 11, 2))
sketch14.addConstraint(Sketcher.Constraint("Horizontal", 10, 2, 13, 2))
sketch14.addConstraint(Sketcher.Constraint("Horizontal", 18, 2, 21, 2))
sketch14.addConstraint(Sketcher.Constraint("Horizontal", 20, 2, 23, 2))
sketch14.addConstraint(Sketcher.Constraint("Horizontal", 22, 2, 25, 2))
sketch14.addConstraint(Sketcher.Constraint("Horizontal", 24, 2, 27, 2))
sketch14.addConstraint(Sketcher.Constraint("Horizontal", 26, 2, 29, 2))
sketch14.addConstraint(Sketcher.Constraint("Vertical", 15, 2, 16, 2))
sketch14.addConstraint(Sketcher.Constraint("Vertical", 13, 2, 18, 2))
sketch14.addConstraint(Sketcher.Constraint("Vertical", 11, 2, 20, 2))
sketch14.addConstraint(Sketcher.Constraint("Vertical", 5, 2, 26, 2))
sketch14.addConstraint(Sketcher.Constraint("Vertical", 3, 2, 28, 2))
sketch14.addConstraint(Sketcher.Constraint("Vertical", 1, 2, 30, 2))
sketch14.addConstraint(Sketcher.Constraint("Equal", 4, 8))
sketch14.addConstraint(Sketcher.Constraint("Equal", 8, 12))
sketch14.addConstraint(Sketcher.Constraint("Equal", 2, 14))
sketch14.addConstraint(Sketcher.Constraint("Equal", 6, 22))
sketch14.addConstraint(Sketcher.Constraint("Equal", 20, 24))
sketch14.addConstraint(Sketcher.Constraint("Equal", 28, 1))
sketch14.addConstraint(Sketcher.Constraint("Equal", 15, 17))
sketch14.addConstraint(Sketcher.Constraint("Equal", 13, 19))
sketch14.addConstraint(Sketcher.Constraint("DistanceX", 2, 2, 2, 1, Q("4 mm")))
sketch14.addConstraint(Sketcher.Constraint("DistanceX", 4, 2, 4, 1, Q("2 mm")))
sketch14.addConstraint(Sketcher.Constraint("DistanceY", 3, 1, 3, 2, Q("5 mm")))
sketch14.addConstraint(Sketcher.Constraint("DistanceX", -1, 1, 0, 2, Q("34 mm")))
sketch14.addConstraint(Sketcher.Constraint("DistanceY", -1, 1, 0, 2, Q("28 mm")))
sketch14.addConstraint(Sketcher.Constraint("DistanceY", -1, 1, 16, 2, Q("16 mm")))
sketch14.addConstraint(Sketcher.Constraint("DistanceX", 10, 2, 10, 1, Q("5.89 mm")))
sketch14.addConstraint(Sketcher.Constraint("DistanceX", 0, 1, 0, 2, Q("25.727203 mm")))
sketch14.setExpression("Constraints[88]", "Params.sketch14_width")
sketch14.setExpression("Constraints[89]", "Params.sketch14_width2")
sketch14.setExpression("Constraints[90]", "Params.sketch14_height")
sketch14.setExpression("Constraints[94]", "Params.sketch14_width3")
pad9 = body.newObject("PartDesign::Pad", "Pad008")
pad9.Profile = sketch14
pad9.setExpression("Length", "Params.pad9_length")

sketch15 = body.newObject("Sketcher::SketchObject", "Sketch014")
sketch15.AttachmentSupport = (doc.getObject("YZ_Plane"), [""])
sketch15.MapMode = "FlatFace"
sketch15.AttachmentOffset = App.Placement(V(0, 0, 12.272797), App.Rotation())
add_polygon(sketch15, [(-20, 30), (0, 35), (-20, 35)])
add_polygon(sketch15, [(0, 9), (-20, 14), (-20, 9)])
sketch15.addConstraint(Sketcher.Constraint("Horizontal", 1))
sketch15.addConstraint(Sketcher.Constraint("Vertical", 2))
sketch15.addConstraint(Sketcher.Constraint("Vertical", 4))
sketch15.addConstraint(Sketcher.Constraint("Horizontal", 5))
sketch15.addConstraint(Sketcher.Constraint("PointOnObject", 0, 2, -2))
sketch15.addConstraint(Sketcher.Constraint("PointOnObject", 5, 2, -2))
sketch15.addConstraint(Sketcher.Constraint("Vertical", 2, 2, 3, 2))
sketch15.addConstraint(Sketcher.Constraint("Equal", 2, 4))
sketch15.addConstraint(Sketcher.Constraint("DistanceX", 1, 2, 1, 1, Q("20 mm")))
sketch15.addConstraint(Sketcher.Constraint("DistanceY", 2, 2, 2, 1, Q("5 mm")))
sketch15.addConstraint(Sketcher.Constraint("DistanceY", -1, 1, 0, 2, Q("35 mm")))
sketch15.addConstraint(Sketcher.Constraint("DistanceY", -1, 1, 3, 2, Q("14 mm")))
sketch15.setExpression("Constraints[14]", "Params.sketch15_width")
sketch15.setExpression("Constraints[15]", "Params.sketch15_height")
pocket6 = body.newObject("PartDesign::Pocket", "Pocket005")
pocket6.Profile = sketch15
pocket6.setExpression("Length", "Params.pocket6_length")
pocket6.Reversed = True

doc.recompute()
